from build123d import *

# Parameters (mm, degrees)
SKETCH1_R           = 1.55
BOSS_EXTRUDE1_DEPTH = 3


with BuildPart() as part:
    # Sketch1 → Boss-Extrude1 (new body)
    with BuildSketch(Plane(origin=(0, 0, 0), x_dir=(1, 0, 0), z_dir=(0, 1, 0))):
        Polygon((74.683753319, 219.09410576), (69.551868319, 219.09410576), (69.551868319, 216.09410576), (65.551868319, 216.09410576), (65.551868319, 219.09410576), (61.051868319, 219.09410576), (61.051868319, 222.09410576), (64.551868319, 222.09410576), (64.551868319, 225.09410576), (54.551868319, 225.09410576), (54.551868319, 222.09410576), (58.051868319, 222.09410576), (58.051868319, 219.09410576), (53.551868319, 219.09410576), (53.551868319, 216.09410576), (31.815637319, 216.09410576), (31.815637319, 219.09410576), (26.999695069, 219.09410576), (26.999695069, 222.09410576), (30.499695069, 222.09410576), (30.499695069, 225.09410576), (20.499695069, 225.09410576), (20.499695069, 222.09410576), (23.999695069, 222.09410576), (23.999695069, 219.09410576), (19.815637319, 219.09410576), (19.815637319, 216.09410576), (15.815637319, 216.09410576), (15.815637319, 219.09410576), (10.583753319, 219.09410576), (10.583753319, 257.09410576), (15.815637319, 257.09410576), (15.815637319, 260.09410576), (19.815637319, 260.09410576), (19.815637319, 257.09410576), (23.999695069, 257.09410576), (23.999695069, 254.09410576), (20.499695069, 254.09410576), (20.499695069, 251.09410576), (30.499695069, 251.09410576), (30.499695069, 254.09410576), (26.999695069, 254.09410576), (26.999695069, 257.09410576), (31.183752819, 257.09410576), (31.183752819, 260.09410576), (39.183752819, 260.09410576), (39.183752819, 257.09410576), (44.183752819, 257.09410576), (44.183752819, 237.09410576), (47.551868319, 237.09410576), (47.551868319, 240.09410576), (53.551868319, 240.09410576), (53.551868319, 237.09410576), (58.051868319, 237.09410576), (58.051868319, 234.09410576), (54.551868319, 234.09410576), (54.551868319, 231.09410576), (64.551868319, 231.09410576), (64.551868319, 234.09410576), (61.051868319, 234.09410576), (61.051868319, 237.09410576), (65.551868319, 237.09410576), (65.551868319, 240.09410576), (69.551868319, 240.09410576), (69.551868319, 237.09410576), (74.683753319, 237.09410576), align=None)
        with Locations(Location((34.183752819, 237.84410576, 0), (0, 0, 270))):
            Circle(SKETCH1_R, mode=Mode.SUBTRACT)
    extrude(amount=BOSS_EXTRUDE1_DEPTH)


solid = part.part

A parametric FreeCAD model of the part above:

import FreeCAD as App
import Part
import Sketcher

doc = App.newDocument("Part")
body = doc.addObject("PartDesign::Body", "Body")

# Sketch on XZ plane
sketch1 = doc.addObject("Sketcher::SketchObject", "Sketch")
body.addObject(sketch1)
sketch1.AttachmentSupport = (doc.XZ_Plane, [""])
sketch1.MapMode = "FlatFace"
sketch1.addGeometry(Part.LineSegment(App.Vector(69.6, -219.1, 0), App.Vector(74.7, -219.1, 0)), False)
sketch1.addGeometry(Part.LineSegment(App.Vector(74.7, -219.1, 0), App.Vector(74.7, -237.1, 0)), False)
sketch1.addGeometry(Part.LineSegment(App.Vector(74.7, -237.1, 0), App.Vector(69.6, -237.1, 0)), False)
sketch1.addGeometry(Part.LineSegment(App.Vector(69.6, -237.1, 0), App.Vector(69.6, -240.1, 0)), False)
sketch1.addGeometry(Part.LineSegment(App.Vector(69.6, -240.1, 0), App.Vector(65.6, -240.1, 0)), False)
sketch1.addGeometry(Part.LineSegment(App.Vector(65.6, -240.1, 0), App.Vector(65.6, -237.1, 0)), False)
sketch1.addGeometry(Part.LineSegment(App.Vector(65.6, -237.1, 0), App.Vector(61.1, -237.1, 0)), False)
sketch1.addGeometry(Part.LineSegment(App.Vector(61.1, -237.1, 0), App.Vector(61.1, -234.1, 0)), False)
sketch1.addGeometry(Part.LineSegment(App.Vector(61.1, -234.1, 0), App.Vector(64.6, -234.1, 0)), False)
sketch1.addGeometry(Part.LineSegment(App.Vector(64.6, -234.1, 0), App.Vector(64.6, -231.1, 0)), False)
sketch1.addGeometry(Part.LineSegment(App.Vector(64.6, -231.1, 0), App.Vector(54.6, -231.1, 0)), False)
sketch1.addGeometry(Part.LineSegment(App.Vector(54.6, -231.1, 0), App.Vector(54.6, -234.1, 0)), False)
sketch1.addGeometry(Part.LineSegment(App.Vector(54.6, -234.1, 0), App.Vector(58.1, -234.1, 0)), False)
sketch1.addGeometry(Part.LineSegment(App.Vector(58.1, -234.1, 0), App.Vector(58.1, -237.1, 0)), False)
sketch1.addGeometry(Part.LineSegment(App.Vector(58.1, -237.1, 0), App.Vector(53.6, -237.1, 0)), False)
sketch1.addGeometry(Part.LineSegment(App.Vector(53.6, -237.1, 0), App.Vector(53.6, -240.1, 0)), False)
sketch1.addGeometry(Part.LineSegment(App.Vector(53.6, -240.1, 0), App.Vector(47.6, -240.1, 0)), False)
sketch1.addGeometry(Part.LineSegment(App.Vector(47.6, -240.1, 0), App.Vector(47.6, -237.1, 0)), False)
sketch1.addGeometry(Part.LineSegment(App.Vector(47.6, -237.1, 0), App.Vector(44.2, -237.1, 0)), False)
sketch1.addGeometry(Part.LineSegment(App.Vector(44.2, -237.1, 0), App.Vector(44.2, -257.1, 0)), False)
sketch1.addGeometry(Part.LineSegment(App.Vector(44.2, -257.1, 0), App.Vector(39.2, -257.1, 0)), False)
sketch1.addGeometry(Part.LineSegment(App.Vector(39.2, -257.1, 0), App.Vector(39.2, -260.1, 0)), False)
sketch1.addGeometry(Part.LineSegment(App.Vector(39.2, -260.1, 0), App.Vector(31.2, -260.1, 0)), False)
sketch1.addGeometry(Part.LineSegment(App.Vector(31.2, -260.1, 0), App.Vector(31.2, -257.1, 0)), False)
sketch1.addGeometry(Part.LineSegment(App.Vector(31.2, -257.1, 0), App.Vector(27, -257.1, 0)), False)
sketch1.addGeometry(Part.LineSegment(App.Vector(27, -257.1, 0), App.Vector(27, -254.1, 0)), False)
sketch1.addGeometry(Part.LineSegment(App.Vector(27, -254.1, 0), App.Vector(30.5, -254.1, 0)), False)
sketch1.addGeometry(Part.LineSegment(App.Vector(30.5, -254.1, 0), App.Vector(30.5, -251.1, 0)), False)
sketch1.addGeometry(Part.LineSegment(App.Vector(30.5, -251.1, 0), App.Vector(20.5, -251.1, 0)), False)
sketch1.addGeometry(Part.LineSegment(App.Vector(20.5, -251.1, 0), App.Vector(20.5, -254.1, 0)), False)
sketch1.addGeometry(Part.LineSegment(App.Vector(20.5, -254.1, 0), App.Vector(24, -254.1, 0)), False)
sketch1.addGeometry(Part.LineSegment(App.Vector(24, -254.1, 0), App.Vector(24, -257.1, 0)), False)
sketch1.addGeometry(Part.LineSegment(App.Vector(24, -257.1, 0), App.Vector(19.8, -257.1, 0)), False)
sketch1.addGeometry(Part.LineSegment(App.Vector(19.8, -257.1, 0), App.Vector(19.8, -260.1, 0)), False)
sketch1.addGeometry(Part.LineSegment(App.Vector(19.8, -260.1, 0), App.Vector(15.8, -260.1, 0)), False)
sketch1.addGeometry(Part.LineSegment(App.Vector(15.8, -260.1, 0), App.Vector(15.8, -257.1, 0)), False)
sketch1.addGeometry(Part.LineSegment(App.Vector(15.8, -257.1, 0), App.Vector(10.6, -257.1, 0)), False)
sketch1.addGeometry(Part.LineSegment(App.Vector(10.6, -257.1, 0), App.Vector(10.6, -219.1, 0)), False)
sketch1.addGeometry(Part.LineSegment(App.Vector(10.6, -219.1, 0), App.Vector(15.8, -219.1, 0)), False)
sketch1.addGeometry(Part.LineSegment(App.Vector(15.8, -219.1, 0), App.Vector(15.8, -216.1, 0)), False)
sketch1.addGeometry(Part.LineSegment(App.Vector(15.8, -216.1, 0), App.Vector(19.8, -216.1, 0)), False)
sketch1.addGeometry(Part.LineSegment(App.Vector(19.8, -216.1, 0), App.Vector(19.8, -219.1, 0)), False)
sketch1.addGeometry(Part.LineSegment(App.Vector(19.8, -219.1, 0), App.Vector(24, -219.1, 0)), False)
sketch1.addGeometry(Part.LineSegment(App.Vector(24, -219.1, 0), App.Vector(24, -222.1, 0)), False)
sketch1.addGeometry(Part.LineSegment(App.Vector(24, -222.1, 0), App.Vector(20.5, -222.1, 0)), False)
sketch1.addGeometry(Part.LineSegment(App.Vector(20.5, -222.1, 0), App.Vector(20.5, -225.1, 0)), False)
sketch1.addGeometry(Part.LineSegment(App.Vector(20.5, -225.1, 0), App.Vector(30.5, -225.1, 0)), False)
sketch1.addGeometry(Part.LineSegment(App.Vector(30.5, -225.1, 0), App.Vector(30.5, -222.1, 0)), False)
sketch1.addGeometry(Part.LineSegment(App.Vector(30.5, -222.1, 0), App.Vector(27, -222.1, 0)), False)
sketch1.addGeometry(Part.LineSegment(App.Vector(27, -222.1, 0), App.Vector(27, -219.1, 0)), False)
sketch1.addGeometry(Part.LineSegment(App.Vector(27, -219.1, 0), App.Vector(31.8, -219.1, 0)), False)
sketch1.addGeometry(Part.LineSegment(App.Vector(31.8, -219.1, 0), App.Vector(31.8, -216.1, 0)), False)
sketch1.addGeometry(Part.LineSegment(App.Vector(31.8, -216.1, 0), App.Vector(53.6, -216.1, 0)), False)
sketch1.addGeometry(Part.LineSegment(App.Vector(53.6, -216.1, 0), App.Vector(53.6, -219.1, 0)), False)
sketch1.addGeometry(Part.LineSegment(App.Vector(53.6, -219.1, 0), App.Vector(58.1, -219.1, 0)), False)
sketch1.addGeometry(Part.LineSegment(App.Vector(58.1, -219.1, 0), App.Vector(58.1, -222.1, 0)), False)
sketch1.addGeometry(Part.LineSegment(App.Vector(58.1, -222.1, 0), App.Vector(54.6, -222.1, 0)), False)
sketch1.addGeometry(Part.LineSegment(App.Vector(54.6, -222.1, 0), App.Vector(54.6, -225.1, 0)), False)
sketch1.addGeometry(Part.LineSegment(App.Vector(54.6, -225.1, 0), App.Vector(64.6, -225.1, 0)), False)
sketch1.addGeometry(Part.LineSegment(App.Vector(64.6, -225.1, 0), App.Vector(64.6, -222.1, 0)), False)
sketch1.addGeometry(Part.LineSegment(App.Vector(64.6, -222.1, 0), App.Vector(61.1, -222.1, 0)), False)
sketch1.addGeometry(Part.LineSegment(App.Vector(61.1, -222.1, 0), App.Vector(61.1, -219.1, 0)), False)
sketch1.addGeometry(Part.LineSegment(App.Vector(61.1, -219.1, 0), App.Vector(65.6, -219.1, 0)), False)
sketch1.addGeometry(Part.LineSegment(App.Vector(65.6, -219.1, 0), App.Vector(65.6, -216.1, 0)), False)
sketch1.addGeometry(Part.LineSegment(App.Vector(65.6, -216.1, 0), App.Vector(69.6, -216.1, 0)), False)
sketch1.addGeometry(Part.LineSegment(App.Vector(69.6, -216.1, 0), App.Vector(69.6, -219.1, 0)), False)
sketch1.addGeometry(Part.Circle(App.Vector(34.2, -237.8, 0), App.Vector(0, 0, 1), 1.6), False)
sketch1.addConstraint(Sketcher.Constraint("Coincident", 0, 2, 1, 1))
sketch1.addConstraint(Sketcher.Constraint("Coincident", 1, 2, 2, 1))
sketch1.addConstraint(Sketcher.Constraint("Coincident", 2, 2, 3, 1))
sketch1.addConstraint(Sketcher.Constraint("Coincident", 3, 2, 4, 1))
sketch1.addConstraint(Sketcher.Constraint("Coincident", 4, 2, 5, 1))
sketch1.addConstraint(Sketcher.Constraint("Coincident", 5, 2, 6, 1))
sketch1.addConstraint(Sketcher.Constraint("Coincident", 6, 2, 7, 1))
sketch1.addConstraint(Sketcher.Constraint("Coincident", 7, 2, 8, 1))
sketch1.addConstraint(Sketcher.Constraint("Coincident", 8, 2, 9, 1))
sketch1.addConstraint(Sketcher.Constraint("Coincident", 9, 2, 10, 1))
sketch1.addConstraint(Sketcher.Constraint("Coincident", 10, 2, 11, 1))
sketch1.addConstraint(Sketcher.Constraint("Coincident", 11, 2, 12, 1))
sketch1.addConstraint(Sketcher.Constraint("Coincident", 12, 2, 13, 1))
sketch1.addConstraint(Sketcher.Constraint("Coincident", 13, 2, 14, 1))
sketch1.addConstraint(Sketcher.Constraint("Coincident", 14, 2, 15, 1))
sketch1.addConstraint(Sketcher.Constraint("Coincident", 15, 2, 16, 1))
sketch1.addConstraint(Sketcher.Constraint("Coincident", 16, 2, 17, 1))
sketch1.addConstraint(Sketcher.Constraint("Coincident", 17, 2, 18, 1))
sketch1.addConstraint(Sketcher.Constraint("Coincident", 18, 2, 19, 1))
sketch1.addConstraint(Sketcher.Constraint("Coincident", 19, 2, 20, 1))
sketch1.addConstraint(Sketcher.Constraint("Coincident", 20, 2, 21, 1))
sketch1.addConstraint(Sketcher.Constraint("Coincident", 21, 2, 22, 1))
sketch1.addConstraint(Sketcher.Constraint("Coincident", 22, 2, 23, 1))
sketch1.addConstraint(Sketcher.Constraint("Coincident", 23, 2, 24, 1))
sketch1.addConstraint(Sketcher.Constraint("Coincident", 24, 2, 25, 1))
sketch1.addConstraint(Sketcher.Constraint("Coincident", 25, 2, 26, 1))
sketch1.addConstraint(Sketcher.Constraint("Coincident", 26, 2, 27, 1))
sketch1.addConstraint(Sketcher.Constraint("Coincident", 27, 2, 28, 1))
sketch1.addConstraint(Sketcher.Constraint("Coincident", 28, 2, 29, 1))
sketch1.addConstraint(Sketcher.Constraint("Coincident", 29, 2, 30, 1))
sketch1.addConstraint(Sketcher.Constraint("Coincident", 30, 2, 31, 1))
sketch1.addConstraint(Sketcher.Constraint("Coincident", 31, 2, 32, 1))
sketch1.addConstraint(Sketcher.Constraint("Coincident", 32, 2, 33, 1))
sketch1.addConstraint(Sketcher.Constraint("Coincident", 33, 2, 34, 1))
sketch1.addConstraint(Sketcher.Constraint("Coincident", 34, 2, 35, 1))
sketch1.addConstraint(Sketcher.Constraint("Coincident", 35, 2, 36, 1))
sketch1.addConstraint(Sketcher.Constraint("Coincident", 36, 2, 37, 1))
sketch1.addConstraint(Sketcher.Constraint("Coincident", 37, 2, 38, 1))
sketch1.addConstraint(Sketcher.Constraint("Coincident", 38, 2, 39, 1))
sketch1.addConstraint(Sketcher.Constraint("Coincident", 39, 2, 40, 1))
sketch1.addConstraint(Sketcher.Constraint("Coincident", 40, 2, 41, 1))
sketch1.addConstraint(Sketcher.Constraint("Coincident", 41, 2, 42, 1))
sketch1.addConstraint(Sketcher.Constraint("Coincident", 42, 2, 43, 1))
sketch1.addConstraint(Sketcher.Constraint("Coincident", 43, 2, 44, 1))
sketch1.addConstraint(Sketcher.Constraint("Coincident", 44, 2, 45, 1))
sketch1.addConstraint(Sketcher.Constraint("Coincident", 45, 2, 46, 1))
sketch1.addConstraint(Sketcher.Constraint("Coincident", 46, 2, 47, 1))
sketch1.addConstraint(Sketcher.Constraint("Coincident", 47, 2, 48, 1))
sketch1.addConstraint(Sketcher.Constraint("Coincident", 48, 2, 49, 1))
sketch1.addConstraint(Sketcher.Constraint("Coincident", 49, 2, 50, 1))
sketch1.addConstraint(Sketcher.Constraint("Coincident", 50, 2, 51, 1))
sketch1.addConstraint(Sketcher.Constraint("Coincident", 51, 2, 52, 1))
sketch1.addConstraint(Sketcher.Constraint("Coincident", 52, 2, 53, 1))
sketch1.addConstraint(Sketcher.Constraint("Coincident", 53, 2, 54, 1))
sketch1.addConstraint(Sketcher.Constraint("Coincident", 54, 2, 55, 1))
sketch1.addConstraint(Sketcher.Constraint("Coincident", 55, 2, 56, 1))
sketch1.addConstraint(Sketcher.Constraint("Coincident", 56, 2, 57, 1))
sketch1.addConstraint(Sketcher.Constraint("Coincident", 57, 2, 58, 1))
sketch1.addConstraint(Sketcher.Constraint("Coincident", 58, 2, 59, 1))
sketch1.addConstraint(Sketcher.Constraint("Coincident", 59, 2, 60, 1))
sketch1.addConstraint(Sketcher.Constraint("Coincident", 60, 2, 61, 1))
sketch1.addConstraint(Sketcher.Constraint("Coincident", 61, 2, 62, 1))
sketch1.addConstraint(Sketcher.Constraint("Coincident", 62, 2, 63, 1))
sketch1.addConstraint(Sketcher.Constraint("Coincident", 63, 2, 64, 1))
sketch1.addConstraint(Sketcher.Constraint("Coincident", 64, 2, 65, 1))
sketch1.addConstraint(Sketcher.Constraint("Coincident", 65, 2, 0, 1))
sketch1.addConstraint(Sketcher.Constraint("Horizontal", 0))
sketch1.addConstraint(Sketcher.Constraint("Vertical", 1))
sketch1.addConstraint(Sketcher.Constraint("Horizontal", 2))
sketch1.addConstraint(Sketcher.Constraint("Vertical", 3))
sketch1.addConstraint(Sketcher.Constraint("Horizontal", 4))
sketch1.addConstraint(Sketcher.Constraint("Vertical", 5))
sketch1.addConstraint(Sketcher.Constraint("Horizontal", 6))
sketch1.addConstraint(Sketcher.Constraint("Vertical", 7))
sketch1.addConstraint(Sketcher.Constraint("Horizontal", 8))
sketch1.addConstraint(Sketcher.Constraint("Vertical", 9))
sketch1.addConstraint(Sketcher.Constraint("Horizontal", 10))
sketch1.addConstraint(Sketcher.Constraint("Vertical", 11))
sketch1.addConstraint(Sketcher.Constraint("Horizontal", 12))
sketch1.addConstraint(Sketcher.Constraint("Vertical", 13))
sketch1.addConstraint(Sketcher.Constraint("Horizontal", 14))
sketch1.addConstraint(Sketcher.Constraint("Vertical", 15))
sketch1.addConstraint(Sketcher.Constraint("Horizontal", 16))
sketch1.addConstraint(Sketcher.Constraint("Vertical", 17))
sketch1.addConstraint(Sketcher.Constraint("Horizontal", 18))
sketch1.addConstraint(Sketcher.Constraint("Vertical", 19))
sketch1.addConstraint(Sketcher.Constraint("Horizontal", 20))
sketch1.addConstraint(Sketcher.Constraint("Vertical", 21))
sketch1.addConstraint(Sketcher.Constraint("Horizontal", 22))
sketch1.addConstraint(Sketcher.Constraint("Vertical", 23))
sketch1.addConstraint(Sketcher.Constraint("Horizontal", 24))
sketch1.addConstraint(Sketcher.Constraint("Vertical", 25))
sketch1.addConstraint(Sketcher.Constraint("Horizontal", 26))
sketch1.addConstraint(Sketcher.Constraint("Vertical", 27))
sketch1.addConstraint(Sketcher.Constraint("Horizontal", 28))
sketch1.addConstraint(Sketcher.Constraint("Vertical", 29))
sketch1.addConstraint(Sketcher.Constraint("Horizontal", 30))
sketch1.addConstraint(Sketcher.Constraint("Vertical", 31))
sketch1.addConstraint(Sketcher.Constraint("Horizontal", 32))
sketch1.addConstraint(Sketcher.Constraint("Vertical", 33))
sketch1.addConstraint(Sketcher.Constraint("Horizontal", 34))
sketch1.addConstraint(Sketcher.Constraint("Vertical", 35))
sketch1.addConstraint(Sketcher.Constraint("Horizontal", 36))
sketch1.addConstraint(Sketcher.Constraint("Vertical", 37))
sketch1.addConstraint(Sketcher.Constraint("Horizontal", 38))
sketch1.addConstraint(Sketcher.Constraint("Vertical", 39))
sketch1.addConstraint(Sketcher.Constraint("Horizontal", 40))
sketch1.addConstraint(Sketcher.Constraint("Vertical", 41))
sketch1.addConstraint(Sketcher.Constraint("Horizontal", 42))
sketch1.addConstraint(Sketcher.Constraint("Vertical", 43))
sketch1.addConstraint(Sketcher.Constraint("Horizontal", 44))
sketch1.addConstraint(Sketcher.Constraint("Vertical", 45))
sketch1.addConstraint(Sketcher.Constraint("Horizontal", 46))
sketch1.addConstraint(Sketcher.Constraint("Vertical", 47))
sketch1.addConstraint(Sketcher.Constraint("Horizontal", 48))
sketch1.addConstraint(Sketcher.Constraint("Vertical", 49))
sketch1.addConstraint(Sketcher.Constraint("Horizontal", 50))
sketch1.addConstraint(Sketcher.Constraint("Vertical", 51))
sketch1.addConstraint(Sketcher.Constraint("Horizontal", 52))
sketch1.addConstraint(Sketcher.Constraint("Vertical", 53))
sketch1.addConstraint(Sketcher.Constraint("Horizontal", 54))
sketch1.addConstraint(Sketcher.Constraint("Vertical", 55))
sketch1.addConstraint(Sketcher.Constraint("Horizontal", 56))
sketch1.addConstraint(Sketcher.Constraint("Vertical", 57))
sketch1.addConstraint(Sketcher.Constraint("Horizontal", 58))
sketch1.addConstraint(Sketcher.Constraint("Vertical", 59))
sketch1.addConstraint(Sketcher.Constraint("Horizontal", 60))
sketch1.addConstraint(Sketcher.Constraint("Vertical", 61))
sketch1.addConstraint(Sketcher.Constraint("Horizontal", 62))
sketch1.addConstraint(Sketcher.Constraint("Vertical", 63))
sketch1.addConstraint(Sketcher.Constraint("Horizontal", 64))
sketch1.addConstraint(Sketcher.Constraint("Vertical", 65))
sketch1.addConstraint(Sketcher.Constraint("Horizontal", 2, 2, 5, 2))
sketch1.addConstraint(Sketcher.Constraint("Horizontal", 8, 2, 11, 2))
sketch1.addConstraint(Sketcher.Constraint("Horizontal", 6, 2, 13, 2))
sketch1.addConstraint(Sketcher.Constraint("Horizontal", 4, 2, 15, 2))
sketch1.addConstraint(Sketcher.Constraint("Horizontal", 14, 2, 17, 2))
sketch1.addConstraint(Sketcher.Constraint("Horizontal", 20, 2, 23, 2))
sketch1.addConstraint(Sketcher.Constraint("Horizontal", 26, 2, 29, 2))
sketch1.addConstraint(Sketcher.Constraint("Horizontal", 24, 2, 31, 2))
sketch1.addConstraint(Sketcher.Constraint("Horizontal", 22, 2, 33, 2))
sketch1.addConstraint(Sketcher.Constraint("Horizontal", 32, 2, 35, 2))
sketch1.addConstraint(Sketcher.Constraint("Horizontal", 0, 2, 37, 2))
sketch1.addConstraint(Sketcher.Constraint("Horizontal", 38, 2, 41, 2))
sketch1.addConstraint(Sketcher.Constraint("Horizontal", 44, 2, 47, 2))
sketch1.addConstraint(Sketcher.Constraint("Horizontal", 42, 2, 49, 2))
sketch1.addConstraint(Sketcher.Constraint("Horizontal", 40, 2, 51, 2))
sketch1.addConstraint(Sketcher.Constraint("Horizontal", 50, 2, 53, 2))
sketch1.addConstraint(Sketcher.Constraint("Horizontal", 48, 2, 55, 2))
sketch1.addConstraint(Sketcher.Constraint("Horizontal", 46, 2, 57, 2))
sketch1.addConstraint(Sketcher.Constraint("Horizontal", 56, 2, 59, 2))
sketch1.addConstraint(Sketcher.Constraint("Horizontal", 54, 2, 61, 2))
sketch1.addConstraint(Sketcher.Constraint("Horizontal", 52, 2, 63, 2))
sketch1.addConstraint(Sketcher.Constraint("Vertical", 35, 2, 38, 2))
sketch1.addConstraint(Sketcher.Constraint("Vertical", 33, 2, 40, 2))
sketch1.addConstraint(Sketcher.Constraint("Vertical", 31, 2, 42, 2))
sketch1.addConstraint(Sketcher.Constraint("Vertical", 29, 2, 44, 2))
sketch1.addConstraint(Sketcher.Constraint("Vertical", 27, 2, 46, 2))
sketch1.addConstraint(Sketcher.Constraint("Vertical", 25, 2, 48, 2))
sketch1.addConstraint(Sketcher.Constraint("Vertical", 15, 2, 52, 2))
sketch1.addConstraint(Sketcher.Constraint("Vertical", 13, 2, 54, 2))
sketch1.addConstraint(Sketcher.Constraint("Vertical", 11, 2, 56, 2))
sketch1.addConstraint(Sketcher.Constraint("Vertical", 9, 2, 58, 2))
sketch1.addConstraint(Sketcher.Constraint("Vertical", 7, 2, 60, 2))
sketch1.addConstraint(Sketcher.Constraint("Vertical", 5, 2, 62, 2))
sketch1.addConstraint(Sketcher.Constraint("Vertical", 3, 2, 64, 2))
sketch1.addConstraint(Sketcher.Constraint("Equal", 8, 12))
sketch1.addConstraint(Sketcher.Constraint("Equal", 6, 14))
sketch1.addConstraint(Sketcher.Constraint("Equal", 12, 26))
sketch1.addConstraint(Sketcher.Constraint("Equal", 10, 28))
sketch1.addConstraint(Sketcher.Constraint("Equal", 26, 30))
sketch1.addConstraint(Sketcher.Constraint("Equal", 24, 32))
sketch1.addConstraint(Sketcher.Constraint("Equal", 4, 34))
sketch1.addConstraint(Sketcher.Constraint("Equal", 5, 7))
sketch1.addConstraint(Sketcher.Constraint("Equal", 7, 9))
sketch1.addConstraint(Sketcher.Constraint("Equal", 17, 21))
sketch1.addConstraint(Sketcher.Constraint("Equal", 23, 25))
sketch1.addConstraint(Sketcher.Constraint("Equal", 25, 27))
sketch1.addConstraint(Sketcher.Constraint("Equal", 35, 39))
sketch1.addConstraint(Sketcher.Constraint("Equal", 41, 43))
sketch1.addConstraint(Sketcher.Constraint("Equal", 43, 45))
sketch1.addConstraint(Sketcher.Constraint("Diameter", 66, 3.1))
sketch1.addConstraint(Sketcher.Constraint("DistanceX", 4, 2, 4, 1, 4.0))
sketch1.addConstraint(Sketcher.Constraint("DistanceX", 10, 2, 10, 1, 10.0))
sketch1.addConstraint(Sketcher.Constraint("DistanceX", 16, 2, 16, 1, 6.0))
sketch1.addConstraint(Sketcher.Constraint("DistanceX", 20, 2, 20, 1, 5.0))
sketch1.addConstraint(Sketcher.Constraint("DistanceX", 22, 2, 22, 1, 8.0))
sketch1.addConstraint(Sketcher.Constraint("DistanceY", 1, 2, 1, 1, 18.0))
sketch1.addConstraint(Sketcher.Constraint("DistanceY", 3, 2, 3, 1, 3.0))
sketch1.addConstraint(Sketcher.Constraint("DistanceY", 19, 2, 19, 1, 20.0))
sketch1.addConstraint(Sketcher.Constraint("DistanceX", 6, 2, 6, 1, 4.5))
sketch1.addConstraint(Sketcher.Constraint("DistanceX", 8, 1, 8, 2, 3.5))
sketch1.addConstraint(Sketcher.Constraint("DistanceX", 52, 1, 52, 2, 21.736231))
sketch1.addConstraint(Sketcher.Constraint("DistanceX", 0, 1, 0, 2, 5.131885))
sketch1.addConstraint(Sketcher.Constraint("DistanceX", 18, 2, 18, 1, 3.368116))
sketch1.addConstraint(Sketcher.Constraint("DistanceX", 24, 2, 24, 1, 4.184058))
sketch1.addConstraint(Sketcher.Constraint("DistanceX", 36, 2, 36, 1, 5.231884))
sketch1.addConstraint(Sketcher.Constraint("DistanceX", -1, 1, 2, 2, 69.551868))
sketch1.addConstraint(Sketcher.Constraint("DistanceX", -1, 1, 66, 3, 34.183753))
sketch1.addConstraint(Sketcher.Constraint("DistanceY", 66, 3, -1, 1, 237.844106))
sketch1.addConstraint(Sketcher.Constraint("DistanceY", 0, 2, -1, 1, 219.094106))
pad1 = doc.addObject("PartDesign::Pad", "Pad")
body.addObject(pad1)
pad1.Profile = sketch1
pad1.Length = 3
pad1.Reversed = True

doc.recompute()
